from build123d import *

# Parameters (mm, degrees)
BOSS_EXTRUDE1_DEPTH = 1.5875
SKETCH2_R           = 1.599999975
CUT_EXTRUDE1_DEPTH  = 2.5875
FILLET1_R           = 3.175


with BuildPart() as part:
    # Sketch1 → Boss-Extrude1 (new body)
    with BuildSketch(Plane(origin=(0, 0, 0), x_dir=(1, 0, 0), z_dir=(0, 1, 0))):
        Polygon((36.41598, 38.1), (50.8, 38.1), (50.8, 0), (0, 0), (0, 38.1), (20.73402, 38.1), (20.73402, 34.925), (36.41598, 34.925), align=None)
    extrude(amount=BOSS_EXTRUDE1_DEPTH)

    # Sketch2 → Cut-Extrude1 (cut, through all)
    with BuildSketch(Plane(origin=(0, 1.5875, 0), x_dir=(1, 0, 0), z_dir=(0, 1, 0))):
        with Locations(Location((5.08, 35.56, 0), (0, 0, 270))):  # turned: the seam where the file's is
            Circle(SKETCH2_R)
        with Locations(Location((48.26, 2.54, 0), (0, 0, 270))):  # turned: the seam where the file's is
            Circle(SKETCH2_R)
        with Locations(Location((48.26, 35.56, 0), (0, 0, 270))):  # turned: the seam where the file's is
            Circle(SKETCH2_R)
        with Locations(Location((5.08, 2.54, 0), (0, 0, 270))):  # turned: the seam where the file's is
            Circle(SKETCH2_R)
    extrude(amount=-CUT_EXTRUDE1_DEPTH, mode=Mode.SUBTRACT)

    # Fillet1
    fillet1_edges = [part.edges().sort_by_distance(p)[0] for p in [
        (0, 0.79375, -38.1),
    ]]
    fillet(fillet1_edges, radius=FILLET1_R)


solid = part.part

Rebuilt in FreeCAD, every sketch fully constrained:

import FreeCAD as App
import Part
import Sketcher
Q = App.Units.Quantity


def edges_at(feature, points):
    """Names of the edges that pass closest to the given points."""
    edges = feature.Shape.Edges
    near = lambda p: min(range(len(edges)), key=lambda i: edges[i].distToShape(Part.Vertex(*p))[0])
    return sorted({f"Edge{near(p) + 1}" for p in points})

doc = App.newDocument("Part")
body = doc.addObject("PartDesign::Body", "Body")

# Sketch on XZ plane
sketch1 = body.newObject("Sketcher::SketchObject", "Sketch")
sketch1.AttachmentSupport = (doc.getObject("XZ_Plane"), [""])
sketch1.MapMode = "FlatFace"
sketch1.addGeometry([
    Part.LineSegment(App.Vector(50.8, -38.1, 0), App.Vector(36.4, -38.1, 0)),  # 0
    Part.LineSegment(App.Vector(36.4, -38.1, 0), App.Vector(36.4, -34.9, 0)),  # 1
    Part.LineSegment(App.Vector(36.4, -34.9, 0), App.Vector(20.7, -34.9, 0)),  # 2
    Part.LineSegment(App.Vector(20.7, -34.9, 0), App.Vector(20.7, -38.1, 0)),  # 3
    Part.LineSegment(App.Vector(20.7, -38.1, 0), App.Vector(0, -38.1, 0)),  # 4
    Part.LineSegment(App.Vector(0, -38.1, 0), App.Vector(0, 0, 0)),  # 5
    Part.LineSegment(App.Vector(0, 0, 0), App.Vector(50.8, 0, 0)),  # 6
    Part.LineSegment(App.Vector(50.8, 0, 0), App.Vector(50.8, -38.1, 0)),  # 7
], False)
sketch1.addConstraint([
    Sketcher.Constraint("Coincident", 0, 2, 1, 1),
    Sketcher.Constraint("Coincident", 1, 2, 2, 1),
    Sketcher.Constraint("Coincident", 2, 2, 3, 1),
    Sketcher.Constraint("Coincident", 3, 2, 4, 1),
    Sketcher.Constraint("Coincident", 4, 2, 5, 1),
    Sketcher.Constraint("Coincident", 5, 2, 6, 1),
    Sketcher.Constraint("Coincident", 6, 2, 7, 1),
    Sketcher.Constraint("Coincident", 7, 2, 0, 1),
    Sketcher.Constraint("Horizontal", 0),
    Sketcher.Constraint("Vertical", 1),
    Sketcher.Constraint("Horizontal", 2),
    Sketcher.Constraint("Vertical", 3),
    Sketcher.Constraint("Horizontal", 4),
    Sketcher.Constraint("Vertical", 5),
    Sketcher.Constraint("Horizontal", 6),
    Sketcher.Constraint("Vertical", 7),
    Sketcher.Constraint("Coincident", 5, 2, -1, 1),
    Sketcher.Constraint("Horizontal", 0, 2, 3, 2),
    Sketcher.Constraint("DistanceX", 6, 1, 6, 2, Q("2 in")),
    Sketcher.Constraint("DistanceY", 5, 1, 5, 2, Q("1.5 in")),
    Sketcher.Constraint("DistanceY", 1, 1, 1, 2, Q("0.125 in")),
    Sketcher.Constraint("DistanceX", 0, 2, 0, 1, Q("0.5663 in")),
    Sketcher.Constraint("DistanceX", 2, 2, 2, 1, Q("0.6174 in")),
])
pad1 = body.newObject("PartDesign::Pad", "Pad")
pad1.Profile = sketch1
pad1.Length = Q("0.0625 in")
pad1.Reversed = True

# Sketch on XZ plane
sketch2 = body.newObject("Sketcher::SketchObject", "Sketch001")
sketch2.AttachmentSupport = (doc.getObject("XZ_Plane"), [""])
sketch2.MapMode = "FlatFace"
sketch2.AttachmentOffset = App.Placement(App.Vector(0, 0, -0.0625 * 25.4), App.Rotation())
sketch2.addGeometry([
    Part.Circle(App.Vector(5.1, -35.6, 0), App.Vector(0, 0, 1), 1.6),
    Part.Circle(App.Vector(48.3, -2.5, 0), App.Vector(0, 0, 1), 1.6),
    Part.Circle(App.Vector(48.3, -35.6, 0), App.Vector(0, 0, 1), 1.6),
    Part.Circle(App.Vector(5.1, -2.5, 0), App.Vector(0, 0, 1), 1.6),
], False)
sketch2.addConstraint([
    Sketcher.Constraint("Equal", 0, 1),
    Sketcher.Constraint("Equal", 1, 2),
    Sketcher.Constraint("Equal", 2, 3),
    Sketcher.Constraint("Horizontal", 0, 3, 2, 3),
    Sketcher.Constraint("Horizontal", 1, 3, 3, 3),
    Sketcher.Constraint("Vertical", 1, 3, 2, 3),
    Sketcher.Constraint("Vertical", 0, 3, 3, 3),
    Sketcher.Constraint("DistanceX", -1, 1, 0, 3, Q("0.2 in")),
    Sketcher.Constraint("DistanceY", 0, 3, -1, 1, Q("1.4 in")),
    Sketcher.Constraint("DistanceX", -1, 1, 1, 3, Q("1.9 in")),
    Sketcher.Constraint("DistanceY", 1, 3, -1, 1, Q("0.1 in")),
    Sketcher.Constraint("Diameter", 0, Q("3.2 mm")),
])
pocket1 = body.newObject("PartDesign::Pocket", "Pocket")
pocket1.Profile = sketch2
pocket1.Type = "ThroughAll"
pocket1.Reversed = True
doc.recompute()

fillet = body.newObject("PartDesign::Fillet", "Fillet")
fillet.Base = (pocket1, edges_at(pocket1, [(0, 0.794, -38.1)]))
fillet.Radius = Q("0.125 in")

doc.recompute()
